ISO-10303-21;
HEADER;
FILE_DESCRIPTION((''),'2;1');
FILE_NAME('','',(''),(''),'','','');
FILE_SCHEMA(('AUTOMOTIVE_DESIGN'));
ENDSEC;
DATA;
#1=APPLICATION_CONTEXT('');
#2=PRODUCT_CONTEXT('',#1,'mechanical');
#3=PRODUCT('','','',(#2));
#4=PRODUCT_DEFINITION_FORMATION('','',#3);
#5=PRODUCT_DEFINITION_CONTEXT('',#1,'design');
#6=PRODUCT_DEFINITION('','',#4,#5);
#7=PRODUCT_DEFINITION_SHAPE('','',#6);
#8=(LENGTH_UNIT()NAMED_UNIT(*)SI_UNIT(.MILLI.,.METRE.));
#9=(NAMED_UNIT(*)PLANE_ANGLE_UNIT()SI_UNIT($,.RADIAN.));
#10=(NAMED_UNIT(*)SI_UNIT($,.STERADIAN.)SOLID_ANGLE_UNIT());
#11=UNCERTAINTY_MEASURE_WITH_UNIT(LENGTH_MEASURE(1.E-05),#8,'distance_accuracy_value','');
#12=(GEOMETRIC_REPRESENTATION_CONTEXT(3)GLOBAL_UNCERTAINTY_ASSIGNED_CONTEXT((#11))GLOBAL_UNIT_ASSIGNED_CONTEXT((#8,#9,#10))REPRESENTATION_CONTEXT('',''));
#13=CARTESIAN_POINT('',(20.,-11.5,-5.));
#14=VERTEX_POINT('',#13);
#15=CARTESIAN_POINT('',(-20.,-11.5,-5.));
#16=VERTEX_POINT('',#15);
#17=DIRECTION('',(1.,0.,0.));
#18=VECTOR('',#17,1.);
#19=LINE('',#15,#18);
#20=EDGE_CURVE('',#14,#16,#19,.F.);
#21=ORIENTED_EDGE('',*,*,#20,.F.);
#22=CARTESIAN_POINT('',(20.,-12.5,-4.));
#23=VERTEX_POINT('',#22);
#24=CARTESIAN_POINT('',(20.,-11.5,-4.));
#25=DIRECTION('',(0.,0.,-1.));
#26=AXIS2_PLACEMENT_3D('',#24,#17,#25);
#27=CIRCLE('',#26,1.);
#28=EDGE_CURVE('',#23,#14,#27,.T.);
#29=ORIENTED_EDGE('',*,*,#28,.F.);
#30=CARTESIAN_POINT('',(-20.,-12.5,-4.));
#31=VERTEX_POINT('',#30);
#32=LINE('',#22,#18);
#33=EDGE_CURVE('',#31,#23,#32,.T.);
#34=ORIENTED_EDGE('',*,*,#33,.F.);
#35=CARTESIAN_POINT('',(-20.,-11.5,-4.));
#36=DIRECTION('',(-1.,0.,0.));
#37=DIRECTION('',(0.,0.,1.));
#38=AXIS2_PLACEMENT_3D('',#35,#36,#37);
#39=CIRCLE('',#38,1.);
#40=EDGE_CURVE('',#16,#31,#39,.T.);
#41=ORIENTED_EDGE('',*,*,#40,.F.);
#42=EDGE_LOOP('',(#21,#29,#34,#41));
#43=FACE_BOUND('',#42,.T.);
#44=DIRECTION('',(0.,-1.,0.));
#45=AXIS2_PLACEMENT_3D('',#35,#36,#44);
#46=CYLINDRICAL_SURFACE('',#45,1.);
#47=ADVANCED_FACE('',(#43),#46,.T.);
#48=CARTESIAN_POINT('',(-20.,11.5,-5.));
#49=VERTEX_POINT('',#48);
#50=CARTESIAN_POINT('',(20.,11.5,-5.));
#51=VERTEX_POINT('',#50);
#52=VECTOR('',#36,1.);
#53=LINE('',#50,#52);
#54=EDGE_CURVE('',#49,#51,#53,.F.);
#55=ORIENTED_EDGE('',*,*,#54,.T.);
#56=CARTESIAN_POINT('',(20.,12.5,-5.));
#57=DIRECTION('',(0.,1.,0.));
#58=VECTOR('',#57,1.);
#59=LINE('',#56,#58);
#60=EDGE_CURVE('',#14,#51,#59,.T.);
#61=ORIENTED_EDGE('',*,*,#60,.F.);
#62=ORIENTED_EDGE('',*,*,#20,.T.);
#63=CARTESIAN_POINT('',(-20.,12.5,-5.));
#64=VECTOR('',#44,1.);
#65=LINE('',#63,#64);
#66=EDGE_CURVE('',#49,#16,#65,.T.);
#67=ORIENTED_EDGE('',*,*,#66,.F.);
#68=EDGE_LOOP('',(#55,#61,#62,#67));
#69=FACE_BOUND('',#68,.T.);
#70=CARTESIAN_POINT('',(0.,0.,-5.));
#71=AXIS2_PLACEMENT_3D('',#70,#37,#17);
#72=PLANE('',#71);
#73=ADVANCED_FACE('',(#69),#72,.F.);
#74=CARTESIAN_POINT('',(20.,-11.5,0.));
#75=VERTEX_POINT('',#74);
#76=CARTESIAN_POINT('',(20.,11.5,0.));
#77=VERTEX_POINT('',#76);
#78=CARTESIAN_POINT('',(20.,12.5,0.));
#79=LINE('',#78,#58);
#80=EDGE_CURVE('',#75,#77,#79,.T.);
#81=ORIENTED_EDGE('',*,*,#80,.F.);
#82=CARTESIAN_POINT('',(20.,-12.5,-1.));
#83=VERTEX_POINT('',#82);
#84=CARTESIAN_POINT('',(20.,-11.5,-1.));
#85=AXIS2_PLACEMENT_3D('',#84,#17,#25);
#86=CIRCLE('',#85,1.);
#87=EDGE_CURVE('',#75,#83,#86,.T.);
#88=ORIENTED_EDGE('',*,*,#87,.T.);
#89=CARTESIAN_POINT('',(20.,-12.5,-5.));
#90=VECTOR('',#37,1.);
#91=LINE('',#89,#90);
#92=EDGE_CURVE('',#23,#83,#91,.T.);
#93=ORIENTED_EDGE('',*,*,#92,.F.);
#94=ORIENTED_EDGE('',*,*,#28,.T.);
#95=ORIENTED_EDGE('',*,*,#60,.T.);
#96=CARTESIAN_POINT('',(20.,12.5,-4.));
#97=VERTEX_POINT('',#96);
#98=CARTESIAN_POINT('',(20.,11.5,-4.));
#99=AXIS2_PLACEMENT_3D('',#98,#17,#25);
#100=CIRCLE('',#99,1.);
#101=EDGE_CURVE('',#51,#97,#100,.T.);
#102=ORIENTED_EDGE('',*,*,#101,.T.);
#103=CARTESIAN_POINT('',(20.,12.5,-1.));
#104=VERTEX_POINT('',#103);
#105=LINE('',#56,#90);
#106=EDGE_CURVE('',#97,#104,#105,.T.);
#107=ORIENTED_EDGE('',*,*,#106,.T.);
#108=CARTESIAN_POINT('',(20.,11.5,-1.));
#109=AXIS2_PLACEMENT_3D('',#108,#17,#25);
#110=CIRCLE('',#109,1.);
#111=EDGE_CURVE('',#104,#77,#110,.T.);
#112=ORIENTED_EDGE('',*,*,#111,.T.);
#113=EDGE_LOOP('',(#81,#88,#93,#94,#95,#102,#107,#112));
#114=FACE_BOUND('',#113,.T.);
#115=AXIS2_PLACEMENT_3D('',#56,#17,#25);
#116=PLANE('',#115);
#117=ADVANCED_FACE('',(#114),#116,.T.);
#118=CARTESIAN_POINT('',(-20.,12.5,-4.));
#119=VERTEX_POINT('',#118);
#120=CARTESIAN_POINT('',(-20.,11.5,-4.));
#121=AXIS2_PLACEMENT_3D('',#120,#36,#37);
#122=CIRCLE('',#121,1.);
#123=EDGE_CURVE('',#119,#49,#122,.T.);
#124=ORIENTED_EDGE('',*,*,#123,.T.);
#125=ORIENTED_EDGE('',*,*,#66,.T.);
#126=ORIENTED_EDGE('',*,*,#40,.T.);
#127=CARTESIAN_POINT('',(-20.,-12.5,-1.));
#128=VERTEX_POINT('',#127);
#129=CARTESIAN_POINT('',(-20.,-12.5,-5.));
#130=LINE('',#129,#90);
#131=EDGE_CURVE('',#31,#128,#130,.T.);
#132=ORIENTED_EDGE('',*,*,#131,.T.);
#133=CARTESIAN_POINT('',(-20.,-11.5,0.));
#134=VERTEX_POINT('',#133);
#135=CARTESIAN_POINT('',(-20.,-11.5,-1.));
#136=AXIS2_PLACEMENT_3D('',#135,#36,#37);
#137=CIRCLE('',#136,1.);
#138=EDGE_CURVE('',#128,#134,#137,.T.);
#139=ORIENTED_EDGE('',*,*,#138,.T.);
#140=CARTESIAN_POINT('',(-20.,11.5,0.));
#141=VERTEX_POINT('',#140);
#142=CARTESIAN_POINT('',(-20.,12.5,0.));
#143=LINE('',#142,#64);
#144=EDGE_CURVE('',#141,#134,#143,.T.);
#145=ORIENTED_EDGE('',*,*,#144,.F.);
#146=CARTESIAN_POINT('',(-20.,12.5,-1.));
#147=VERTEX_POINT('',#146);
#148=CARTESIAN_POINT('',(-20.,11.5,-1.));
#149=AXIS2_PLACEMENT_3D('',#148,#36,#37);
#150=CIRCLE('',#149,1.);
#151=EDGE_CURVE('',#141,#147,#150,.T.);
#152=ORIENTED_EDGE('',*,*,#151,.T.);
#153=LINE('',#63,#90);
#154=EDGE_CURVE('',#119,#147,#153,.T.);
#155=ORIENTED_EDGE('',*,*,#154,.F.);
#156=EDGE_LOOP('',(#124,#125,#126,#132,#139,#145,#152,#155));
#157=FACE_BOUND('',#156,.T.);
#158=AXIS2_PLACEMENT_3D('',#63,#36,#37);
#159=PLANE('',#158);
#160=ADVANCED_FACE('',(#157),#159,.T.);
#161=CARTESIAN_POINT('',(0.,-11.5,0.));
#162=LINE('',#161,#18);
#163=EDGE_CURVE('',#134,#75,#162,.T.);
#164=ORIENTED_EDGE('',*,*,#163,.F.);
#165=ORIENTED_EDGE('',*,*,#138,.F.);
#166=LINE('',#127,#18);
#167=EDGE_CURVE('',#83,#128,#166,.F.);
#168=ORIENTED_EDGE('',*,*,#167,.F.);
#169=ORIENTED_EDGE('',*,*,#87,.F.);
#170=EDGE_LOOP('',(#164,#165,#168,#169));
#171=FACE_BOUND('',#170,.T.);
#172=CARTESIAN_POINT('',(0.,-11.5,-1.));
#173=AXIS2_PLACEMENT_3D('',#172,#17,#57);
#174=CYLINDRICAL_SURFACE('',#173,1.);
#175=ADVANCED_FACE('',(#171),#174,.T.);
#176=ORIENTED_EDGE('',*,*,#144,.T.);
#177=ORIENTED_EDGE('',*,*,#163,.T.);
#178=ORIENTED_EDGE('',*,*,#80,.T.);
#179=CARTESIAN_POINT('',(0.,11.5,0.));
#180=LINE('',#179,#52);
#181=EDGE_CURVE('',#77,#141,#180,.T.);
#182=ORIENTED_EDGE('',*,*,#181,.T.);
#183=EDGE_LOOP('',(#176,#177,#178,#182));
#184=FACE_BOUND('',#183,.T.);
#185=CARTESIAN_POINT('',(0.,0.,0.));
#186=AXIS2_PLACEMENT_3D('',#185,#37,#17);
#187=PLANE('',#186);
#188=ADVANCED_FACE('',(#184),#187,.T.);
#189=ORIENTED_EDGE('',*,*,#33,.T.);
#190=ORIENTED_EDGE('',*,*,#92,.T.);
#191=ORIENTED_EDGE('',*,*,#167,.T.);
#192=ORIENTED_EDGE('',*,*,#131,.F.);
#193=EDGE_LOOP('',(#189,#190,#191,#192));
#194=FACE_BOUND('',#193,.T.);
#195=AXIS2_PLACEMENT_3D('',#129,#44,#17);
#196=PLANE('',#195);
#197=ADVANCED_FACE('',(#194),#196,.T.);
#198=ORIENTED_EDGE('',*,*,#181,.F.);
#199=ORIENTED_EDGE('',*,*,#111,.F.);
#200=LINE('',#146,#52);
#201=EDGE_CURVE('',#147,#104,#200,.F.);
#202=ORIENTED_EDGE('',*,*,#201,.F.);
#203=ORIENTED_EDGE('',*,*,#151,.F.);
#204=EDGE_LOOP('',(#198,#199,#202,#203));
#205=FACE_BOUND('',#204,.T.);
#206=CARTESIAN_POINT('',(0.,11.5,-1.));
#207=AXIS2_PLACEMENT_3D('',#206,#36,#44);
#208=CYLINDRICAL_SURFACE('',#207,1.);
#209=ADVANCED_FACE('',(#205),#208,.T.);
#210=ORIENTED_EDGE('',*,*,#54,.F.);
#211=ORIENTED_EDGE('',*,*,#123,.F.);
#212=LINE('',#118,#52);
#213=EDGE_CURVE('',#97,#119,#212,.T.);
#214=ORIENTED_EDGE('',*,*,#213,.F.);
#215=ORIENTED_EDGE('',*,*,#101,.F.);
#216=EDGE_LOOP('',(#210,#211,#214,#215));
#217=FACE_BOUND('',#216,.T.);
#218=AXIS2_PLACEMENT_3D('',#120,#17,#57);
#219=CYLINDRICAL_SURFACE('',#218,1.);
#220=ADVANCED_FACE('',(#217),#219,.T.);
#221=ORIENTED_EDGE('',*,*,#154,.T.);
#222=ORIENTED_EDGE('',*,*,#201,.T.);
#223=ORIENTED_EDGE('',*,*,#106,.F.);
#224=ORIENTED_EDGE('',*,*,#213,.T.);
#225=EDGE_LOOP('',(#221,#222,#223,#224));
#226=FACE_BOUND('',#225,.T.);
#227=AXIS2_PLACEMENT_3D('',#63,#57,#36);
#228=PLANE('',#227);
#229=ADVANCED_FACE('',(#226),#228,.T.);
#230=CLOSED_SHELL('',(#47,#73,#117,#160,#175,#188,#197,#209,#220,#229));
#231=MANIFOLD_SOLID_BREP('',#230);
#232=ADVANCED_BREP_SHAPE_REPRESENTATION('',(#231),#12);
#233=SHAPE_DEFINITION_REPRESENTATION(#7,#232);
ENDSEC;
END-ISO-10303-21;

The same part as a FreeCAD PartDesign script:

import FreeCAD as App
import Part
import Sketcher

V = App.Vector


def edges_at(feature, points):
    """Names of the edges that pass closest to the given points."""
    edges = feature.Shape.Edges
    near = lambda p: min(range(len(edges)), key=lambda i: edges[i].distToShape(Part.Vertex(*p))[0])
    return sorted({f"Edge{near(p) + 1}" for p in points})

doc = App.newDocument("Part")
body = doc.addObject("PartDesign::Body", "Body")

sketch1 = body.newObject("Sketcher::SketchObject", "Sketch")
sketch1.AttachmentSupport = (doc.getObject("XY_Plane"), [""])
sketch1.MapMode = "FlatFace"
sketch1.addGeometry([
    Part.LineSegment(V(-20, 12.5, 0), V(-20, -12.5, 0)),
    Part.LineSegment(V(-20, -12.5, 0), V(20, -12.5, 0)),
    Part.LineSegment(V(20, -12.5, 0), V(20, 12.5, 0)),
    Part.LineSegment(V(20, 12.5, 0), V(-20, 12.5, 0)),
], False)
sketch1.addConstraint([
    Sketcher.Constraint("Coincident", 0, 2, 1, 1),
    Sketcher.Constraint("Coincident", 1, 2, 2, 1),
    Sketcher.Constraint("Coincident", 2, 2, 3, 1),
    Sketcher.Constraint("Coincident", 3, 2, 0, 1),
    Sketcher.Constraint("Vertical", 0),
    Sketcher.Constraint("Horizontal", 1),
    Sketcher.Constraint("Vertical", 2),
    Sketcher.Constraint("Horizontal", 3),
    Sketcher.Constraint("Symmetric", 0, 2, 2, 2, -1, 1),
    Sketcher.Constraint("DistanceX", 1, 1, 1, 2, 40.0),
    Sketcher.Constraint("DistanceY", 0, 2, 0, 1, 25.0),
])
pad1 = body.newObject("PartDesign::Pad", "Pad")
pad1.Profile = sketch1
pad1.Length = 5
pad1.Reversed = True
doc.recompute()

fillet = body.newObject("PartDesign::Fillet", "Fillet")
fillet.Base = (pad1, edges_at(pad1, [(0, 12.5, 0)]))
fillet.Radius = 1
doc.recompute()

fillet2 = body.newObject("PartDesign::Fillet", "Fillet001")
fillet2.Base = (fillet, edges_at(fillet, [(0, 12.5, -5), (0, -12.5, 0), (0, -12.5, -5)]))
fillet2.Radius = 1

doc.recompute()
